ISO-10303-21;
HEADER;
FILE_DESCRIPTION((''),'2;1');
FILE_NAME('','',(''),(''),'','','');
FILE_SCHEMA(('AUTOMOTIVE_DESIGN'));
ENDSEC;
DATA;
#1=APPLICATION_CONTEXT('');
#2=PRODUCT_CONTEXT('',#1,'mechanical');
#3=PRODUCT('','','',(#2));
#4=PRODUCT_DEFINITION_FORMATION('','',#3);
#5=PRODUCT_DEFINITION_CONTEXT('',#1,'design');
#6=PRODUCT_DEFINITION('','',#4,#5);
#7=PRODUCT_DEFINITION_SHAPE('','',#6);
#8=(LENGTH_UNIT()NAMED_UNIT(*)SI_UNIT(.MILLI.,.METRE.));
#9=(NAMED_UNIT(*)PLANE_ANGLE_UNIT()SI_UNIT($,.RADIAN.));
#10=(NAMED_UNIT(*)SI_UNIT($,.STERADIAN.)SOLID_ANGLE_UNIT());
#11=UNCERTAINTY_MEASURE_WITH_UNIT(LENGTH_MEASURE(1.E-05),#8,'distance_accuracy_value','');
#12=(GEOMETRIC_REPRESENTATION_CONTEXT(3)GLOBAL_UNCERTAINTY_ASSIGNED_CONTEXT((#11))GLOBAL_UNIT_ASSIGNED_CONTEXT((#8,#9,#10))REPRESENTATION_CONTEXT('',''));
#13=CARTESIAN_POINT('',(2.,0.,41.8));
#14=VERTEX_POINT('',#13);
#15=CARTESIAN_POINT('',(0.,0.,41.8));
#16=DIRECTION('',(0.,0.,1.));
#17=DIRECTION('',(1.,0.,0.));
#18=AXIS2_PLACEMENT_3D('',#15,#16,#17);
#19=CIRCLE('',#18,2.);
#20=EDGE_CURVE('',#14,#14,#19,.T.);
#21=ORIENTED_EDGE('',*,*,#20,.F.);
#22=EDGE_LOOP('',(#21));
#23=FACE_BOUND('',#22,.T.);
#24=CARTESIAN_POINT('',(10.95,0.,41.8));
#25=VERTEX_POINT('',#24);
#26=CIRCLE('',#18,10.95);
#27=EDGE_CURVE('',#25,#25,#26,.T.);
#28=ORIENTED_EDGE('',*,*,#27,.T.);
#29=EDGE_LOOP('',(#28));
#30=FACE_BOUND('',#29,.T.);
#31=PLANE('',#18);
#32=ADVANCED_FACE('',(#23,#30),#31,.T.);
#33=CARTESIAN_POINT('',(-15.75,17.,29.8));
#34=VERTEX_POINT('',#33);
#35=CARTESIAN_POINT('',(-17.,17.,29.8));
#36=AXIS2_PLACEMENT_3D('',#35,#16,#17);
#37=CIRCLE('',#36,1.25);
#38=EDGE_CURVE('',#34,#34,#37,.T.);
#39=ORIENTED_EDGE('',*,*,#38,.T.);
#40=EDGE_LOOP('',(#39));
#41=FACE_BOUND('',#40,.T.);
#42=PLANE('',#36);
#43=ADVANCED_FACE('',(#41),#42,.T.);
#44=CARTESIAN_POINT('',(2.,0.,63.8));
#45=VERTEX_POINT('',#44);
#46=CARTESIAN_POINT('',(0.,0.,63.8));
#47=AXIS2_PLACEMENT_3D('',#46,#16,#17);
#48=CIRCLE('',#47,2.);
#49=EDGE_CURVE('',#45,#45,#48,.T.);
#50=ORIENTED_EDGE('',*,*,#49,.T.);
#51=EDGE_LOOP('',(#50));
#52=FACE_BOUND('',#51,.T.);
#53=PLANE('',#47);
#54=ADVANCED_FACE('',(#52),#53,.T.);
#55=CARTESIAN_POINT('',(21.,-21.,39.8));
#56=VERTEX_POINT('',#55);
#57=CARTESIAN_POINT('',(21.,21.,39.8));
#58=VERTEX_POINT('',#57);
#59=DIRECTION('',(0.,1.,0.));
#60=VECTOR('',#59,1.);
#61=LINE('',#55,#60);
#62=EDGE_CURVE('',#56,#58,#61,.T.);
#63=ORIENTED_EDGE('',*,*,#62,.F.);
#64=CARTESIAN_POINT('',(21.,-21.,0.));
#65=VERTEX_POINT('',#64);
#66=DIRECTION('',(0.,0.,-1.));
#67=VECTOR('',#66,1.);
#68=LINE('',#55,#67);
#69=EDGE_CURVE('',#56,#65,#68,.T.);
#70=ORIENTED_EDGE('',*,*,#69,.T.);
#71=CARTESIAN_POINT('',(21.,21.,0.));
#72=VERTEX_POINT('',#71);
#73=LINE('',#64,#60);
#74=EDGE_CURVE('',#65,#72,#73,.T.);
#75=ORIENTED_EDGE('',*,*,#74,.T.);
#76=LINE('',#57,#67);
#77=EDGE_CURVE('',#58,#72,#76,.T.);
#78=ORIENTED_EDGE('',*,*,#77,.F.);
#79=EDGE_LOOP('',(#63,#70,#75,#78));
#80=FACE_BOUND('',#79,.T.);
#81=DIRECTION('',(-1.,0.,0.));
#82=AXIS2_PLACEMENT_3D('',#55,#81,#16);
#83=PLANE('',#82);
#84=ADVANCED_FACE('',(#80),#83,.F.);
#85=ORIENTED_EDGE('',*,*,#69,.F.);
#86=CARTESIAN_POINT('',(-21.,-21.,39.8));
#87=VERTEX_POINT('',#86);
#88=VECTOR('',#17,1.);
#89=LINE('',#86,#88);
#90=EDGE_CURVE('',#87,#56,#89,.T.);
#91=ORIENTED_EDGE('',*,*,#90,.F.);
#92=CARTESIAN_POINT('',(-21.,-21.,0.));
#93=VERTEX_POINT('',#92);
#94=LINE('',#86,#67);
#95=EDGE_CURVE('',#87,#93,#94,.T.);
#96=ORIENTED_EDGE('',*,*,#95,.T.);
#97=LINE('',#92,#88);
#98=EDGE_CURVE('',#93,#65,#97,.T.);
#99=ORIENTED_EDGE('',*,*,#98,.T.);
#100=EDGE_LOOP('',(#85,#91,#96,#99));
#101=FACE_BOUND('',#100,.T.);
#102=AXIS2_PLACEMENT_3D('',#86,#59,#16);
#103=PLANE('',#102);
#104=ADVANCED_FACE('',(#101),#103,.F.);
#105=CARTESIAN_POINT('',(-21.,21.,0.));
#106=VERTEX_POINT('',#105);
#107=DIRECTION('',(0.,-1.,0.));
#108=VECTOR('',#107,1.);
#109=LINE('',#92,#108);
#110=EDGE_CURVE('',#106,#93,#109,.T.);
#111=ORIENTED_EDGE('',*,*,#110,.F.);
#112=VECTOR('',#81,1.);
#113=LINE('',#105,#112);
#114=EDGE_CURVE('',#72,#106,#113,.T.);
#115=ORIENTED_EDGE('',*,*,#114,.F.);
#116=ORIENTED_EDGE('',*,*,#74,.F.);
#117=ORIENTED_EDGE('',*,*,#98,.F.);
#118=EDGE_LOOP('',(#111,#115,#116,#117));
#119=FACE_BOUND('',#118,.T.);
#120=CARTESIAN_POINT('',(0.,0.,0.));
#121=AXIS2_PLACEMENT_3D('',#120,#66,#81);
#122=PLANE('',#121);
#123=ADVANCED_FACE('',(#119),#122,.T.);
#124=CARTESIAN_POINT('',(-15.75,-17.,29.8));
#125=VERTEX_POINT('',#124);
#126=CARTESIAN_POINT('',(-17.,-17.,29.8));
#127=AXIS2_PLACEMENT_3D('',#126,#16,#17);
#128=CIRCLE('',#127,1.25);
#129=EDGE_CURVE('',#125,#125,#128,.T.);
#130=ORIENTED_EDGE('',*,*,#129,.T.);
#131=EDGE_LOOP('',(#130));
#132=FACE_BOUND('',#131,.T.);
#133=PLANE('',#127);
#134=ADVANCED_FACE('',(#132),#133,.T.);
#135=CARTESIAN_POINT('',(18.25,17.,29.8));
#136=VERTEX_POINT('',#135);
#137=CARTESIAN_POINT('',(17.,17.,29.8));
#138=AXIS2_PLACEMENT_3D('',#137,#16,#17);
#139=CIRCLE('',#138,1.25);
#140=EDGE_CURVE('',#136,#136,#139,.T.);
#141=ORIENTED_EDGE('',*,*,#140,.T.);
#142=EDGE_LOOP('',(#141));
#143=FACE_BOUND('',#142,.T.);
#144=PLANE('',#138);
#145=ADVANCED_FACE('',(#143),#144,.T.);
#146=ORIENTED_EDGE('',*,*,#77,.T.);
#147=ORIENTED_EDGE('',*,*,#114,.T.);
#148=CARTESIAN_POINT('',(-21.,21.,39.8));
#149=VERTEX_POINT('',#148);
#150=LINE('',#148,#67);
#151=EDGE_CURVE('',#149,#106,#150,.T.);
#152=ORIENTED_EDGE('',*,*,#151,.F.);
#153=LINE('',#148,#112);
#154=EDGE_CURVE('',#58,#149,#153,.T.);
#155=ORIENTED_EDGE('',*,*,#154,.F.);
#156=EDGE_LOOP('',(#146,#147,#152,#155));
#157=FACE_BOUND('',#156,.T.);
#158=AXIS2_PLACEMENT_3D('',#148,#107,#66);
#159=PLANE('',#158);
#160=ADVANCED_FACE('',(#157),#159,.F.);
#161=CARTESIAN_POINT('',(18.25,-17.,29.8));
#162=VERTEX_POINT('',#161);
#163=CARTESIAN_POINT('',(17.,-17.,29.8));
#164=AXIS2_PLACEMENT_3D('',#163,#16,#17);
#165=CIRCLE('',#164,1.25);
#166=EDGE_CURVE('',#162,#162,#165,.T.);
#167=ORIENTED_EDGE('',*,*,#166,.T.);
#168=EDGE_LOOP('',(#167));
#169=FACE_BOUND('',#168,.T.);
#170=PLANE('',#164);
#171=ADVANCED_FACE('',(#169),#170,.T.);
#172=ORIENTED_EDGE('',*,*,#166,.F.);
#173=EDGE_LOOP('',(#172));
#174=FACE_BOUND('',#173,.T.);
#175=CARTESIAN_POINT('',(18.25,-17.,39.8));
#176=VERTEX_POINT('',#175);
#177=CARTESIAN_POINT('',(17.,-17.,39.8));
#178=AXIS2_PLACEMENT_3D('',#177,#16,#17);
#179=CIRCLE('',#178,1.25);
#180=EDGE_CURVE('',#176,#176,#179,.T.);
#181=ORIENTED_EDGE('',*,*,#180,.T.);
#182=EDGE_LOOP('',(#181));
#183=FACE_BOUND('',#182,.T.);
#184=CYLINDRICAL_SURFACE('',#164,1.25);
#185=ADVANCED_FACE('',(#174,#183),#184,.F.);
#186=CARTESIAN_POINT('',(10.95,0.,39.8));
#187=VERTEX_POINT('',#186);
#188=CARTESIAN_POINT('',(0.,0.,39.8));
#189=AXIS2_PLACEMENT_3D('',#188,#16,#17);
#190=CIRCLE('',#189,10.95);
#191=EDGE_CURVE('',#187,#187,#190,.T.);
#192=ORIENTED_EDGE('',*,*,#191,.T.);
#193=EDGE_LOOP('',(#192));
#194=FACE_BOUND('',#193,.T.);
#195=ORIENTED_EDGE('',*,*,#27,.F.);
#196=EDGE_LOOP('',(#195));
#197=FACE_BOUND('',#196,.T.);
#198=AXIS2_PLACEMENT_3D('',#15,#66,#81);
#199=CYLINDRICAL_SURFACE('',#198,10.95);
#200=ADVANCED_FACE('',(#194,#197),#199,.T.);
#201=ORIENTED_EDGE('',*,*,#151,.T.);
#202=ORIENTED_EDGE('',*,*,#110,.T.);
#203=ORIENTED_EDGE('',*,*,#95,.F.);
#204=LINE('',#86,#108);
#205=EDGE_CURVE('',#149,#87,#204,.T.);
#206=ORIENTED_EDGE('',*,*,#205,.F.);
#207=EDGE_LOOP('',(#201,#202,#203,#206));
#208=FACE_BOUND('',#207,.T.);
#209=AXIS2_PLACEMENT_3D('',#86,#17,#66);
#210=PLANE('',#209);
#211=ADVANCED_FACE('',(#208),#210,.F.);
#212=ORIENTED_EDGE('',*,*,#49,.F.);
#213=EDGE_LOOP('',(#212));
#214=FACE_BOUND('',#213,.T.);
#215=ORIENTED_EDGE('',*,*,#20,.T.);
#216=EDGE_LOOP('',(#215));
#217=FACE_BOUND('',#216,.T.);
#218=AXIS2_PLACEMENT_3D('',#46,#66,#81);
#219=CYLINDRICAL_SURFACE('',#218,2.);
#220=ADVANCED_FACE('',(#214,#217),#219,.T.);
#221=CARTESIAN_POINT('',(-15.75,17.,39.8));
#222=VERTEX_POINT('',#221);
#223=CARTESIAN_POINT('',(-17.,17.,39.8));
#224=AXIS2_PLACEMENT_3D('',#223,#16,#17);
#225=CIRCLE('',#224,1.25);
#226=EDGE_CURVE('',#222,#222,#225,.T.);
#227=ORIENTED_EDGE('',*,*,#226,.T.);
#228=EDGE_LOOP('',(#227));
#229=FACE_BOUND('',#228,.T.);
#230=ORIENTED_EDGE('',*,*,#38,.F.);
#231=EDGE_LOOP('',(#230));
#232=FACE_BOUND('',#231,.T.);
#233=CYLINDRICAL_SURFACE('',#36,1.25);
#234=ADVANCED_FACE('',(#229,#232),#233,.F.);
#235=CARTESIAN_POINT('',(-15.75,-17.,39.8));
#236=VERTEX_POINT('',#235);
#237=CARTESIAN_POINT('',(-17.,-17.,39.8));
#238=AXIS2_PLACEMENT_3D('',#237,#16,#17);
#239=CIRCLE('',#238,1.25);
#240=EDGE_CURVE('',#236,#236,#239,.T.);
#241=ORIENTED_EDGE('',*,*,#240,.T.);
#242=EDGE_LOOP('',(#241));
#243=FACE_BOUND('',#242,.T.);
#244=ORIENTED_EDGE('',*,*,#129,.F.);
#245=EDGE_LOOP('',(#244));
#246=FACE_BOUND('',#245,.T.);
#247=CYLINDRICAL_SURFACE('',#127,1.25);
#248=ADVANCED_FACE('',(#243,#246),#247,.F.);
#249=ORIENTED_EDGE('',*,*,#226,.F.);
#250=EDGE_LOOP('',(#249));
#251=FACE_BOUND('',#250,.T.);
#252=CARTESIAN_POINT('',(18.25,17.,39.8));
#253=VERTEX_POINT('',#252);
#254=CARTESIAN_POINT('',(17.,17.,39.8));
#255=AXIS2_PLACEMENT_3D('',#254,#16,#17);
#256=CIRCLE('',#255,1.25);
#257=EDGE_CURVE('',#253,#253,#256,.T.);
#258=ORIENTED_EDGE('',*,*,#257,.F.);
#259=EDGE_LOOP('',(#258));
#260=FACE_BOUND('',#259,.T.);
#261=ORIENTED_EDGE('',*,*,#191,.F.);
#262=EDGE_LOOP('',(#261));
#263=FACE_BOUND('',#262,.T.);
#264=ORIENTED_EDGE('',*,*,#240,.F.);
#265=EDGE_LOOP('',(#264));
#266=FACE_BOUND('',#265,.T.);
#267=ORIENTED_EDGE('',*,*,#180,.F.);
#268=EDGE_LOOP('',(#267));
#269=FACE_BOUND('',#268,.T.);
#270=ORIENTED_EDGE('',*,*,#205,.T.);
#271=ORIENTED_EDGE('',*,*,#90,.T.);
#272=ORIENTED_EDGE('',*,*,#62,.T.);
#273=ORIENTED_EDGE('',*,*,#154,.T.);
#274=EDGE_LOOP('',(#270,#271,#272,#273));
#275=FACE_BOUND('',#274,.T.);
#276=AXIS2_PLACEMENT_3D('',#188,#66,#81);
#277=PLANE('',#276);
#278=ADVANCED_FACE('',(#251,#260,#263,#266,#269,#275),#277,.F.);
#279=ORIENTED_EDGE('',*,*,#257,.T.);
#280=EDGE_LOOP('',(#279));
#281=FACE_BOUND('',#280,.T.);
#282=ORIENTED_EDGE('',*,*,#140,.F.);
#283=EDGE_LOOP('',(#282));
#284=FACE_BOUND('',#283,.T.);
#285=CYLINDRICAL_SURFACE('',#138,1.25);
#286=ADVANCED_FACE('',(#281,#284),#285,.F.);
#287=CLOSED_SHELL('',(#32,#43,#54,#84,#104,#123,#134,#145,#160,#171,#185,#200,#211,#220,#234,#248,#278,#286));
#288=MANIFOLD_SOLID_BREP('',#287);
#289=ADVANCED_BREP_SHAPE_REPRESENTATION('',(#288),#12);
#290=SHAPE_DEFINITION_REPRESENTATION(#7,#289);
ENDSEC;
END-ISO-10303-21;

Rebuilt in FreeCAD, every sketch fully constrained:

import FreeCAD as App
import Part
import Sketcher
Q = App.Units.Quantity


def add_polygon(sketch, points):
    """Adds a closed chain of lines whose ends are joined by coincident constraints."""
    first, n = sketch.GeometryCount, len(points)
    for a, b in zip(points, points[1:] + points[:1]):
        sketch.addGeometry(Part.LineSegment(App.Vector(*a, 0), App.Vector(*b, 0)), False)
    for i in range(n):
        sketch.addConstraint(Sketcher.Constraint("Coincident", first + i, 2, first + (i + 1) % n, 1))

doc = App.newDocument("Part")
body = doc.addObject("PartDesign::Body", "Body")

# Sketch on XY plane
sketch1 = doc.addObject("Sketcher::SketchObject", "Sketch")
body.addObject(sketch1)
sketch1.AttachmentSupport = (doc.XY_Plane, [""])
sketch1.MapMode = "FlatFace"
add_polygon(sketch1, [(-21, 21), (-21, -21), (21, -21), (21, 21)])  # lines 0-3
sketch1.addConstraint([
    Sketcher.Constraint("Vertical", 0),
    Sketcher.Constraint("Horizontal", 1),
    Sketcher.Constraint("Vertical", 2),
    Sketcher.Constraint("Horizontal", 3),
    Sketcher.Constraint("Symmetric", 0, 2, 2, 2, -1, 1),
    Sketcher.Constraint("Equal", 3, 0),
    Sketcher.Constraint("DistanceX", 1, 1, 1, 2, Q("42 mm")),
])
pad1 = doc.addObject("PartDesign::Pad", "Pad")
body.addObject(pad1)
pad1.Profile = sketch1
pad1.Length = 39.8

# Sketch on XY plane
sketch2 = doc.addObject("Sketcher::SketchObject", "Sketch001")
body.addObject(sketch2)
sketch2.AttachmentSupport = (doc.XY_Plane, [""])
sketch2.MapMode = "FlatFace"
sketch2.AttachmentOffset = App.Placement(App.Vector(0, 0, 39.8), App.Rotation())
sketch2.addGeometry(Part.Circle(App.Vector(0, 0, 0), App.Vector(0, 0, 1), 11), False)
sketch2.addConstraint([
    Sketcher.Constraint("Coincident", 0, 3, -1, 1),
    Sketcher.Constraint("Diameter", 0, Q("21.9 mm")),
])
pad2 = doc.addObject("PartDesign::Pad", "Pad001")
body.addObject(pad2)
pad2.Profile = sketch2
pad2.Length = 2

# Sketch on XY plane
sketch3 = doc.addObject("Sketcher::SketchObject", "Sketch002")
body.addObject(sketch3)
sketch3.AttachmentSupport = (doc.XY_Plane, [""])
sketch3.MapMode = "FlatFace"
sketch3.AttachmentOffset = App.Placement(App.Vector(0, 0, 39.8), App.Rotation())
sketch3.addGeometry([
    Part.Circle(App.Vector(-17, 17, 0), App.Vector(0, 0, 1), 1.2),
    Part.Circle(App.Vector(17, 17, 0), App.Vector(0, 0, 1), 1.2),
    Part.Circle(App.Vector(17, -17, 0), App.Vector(0, 0, 1), 1.2),
    Part.Circle(App.Vector(-17, -17, 0), App.Vector(0, 0, 1), 1.2),
], False)
sketch3.addConstraint([
    Sketcher.Constraint("Equal", 0, 1),
    Sketcher.Constraint("Equal", 1, 2),
    Sketcher.Constraint("Equal", 2, 3),
    Sketcher.Constraint("Symmetric", 0, 3, 2, 3, -1, 1),
    Sketcher.Constraint("Symmetric", 1, 3, 3, 3, -1, 1),
    Sketcher.Constraint("Symmetric", 0, 3, 1, 3, -2),
    Sketcher.Constraint("Diameter", 0, Q("2.5 mm")),
    Sketcher.Constraint("DistanceX", 0, 3, -1, 1, Q("17 mm")),
    Sketcher.Constraint("DistanceY", -1, 1, 0, 3, Q("17 mm")),
])
pocket1 = doc.addObject("PartDesign::Pocket", "Pocket")
body.addObject(pocket1)
pocket1.Profile = sketch3
pocket1.Length = 10

# Sketch on XY plane
sketch4 = doc.addObject("Sketcher::SketchObject", "Sketch003")
body.addObject(sketch4)
sketch4.AttachmentSupport = (doc.XY_Plane, [""])
sketch4.MapMode = "FlatFace"
sketch4.AttachmentOffset = App.Placement(App.Vector(0, 0, 41.8), App.Rotation())
sketch4.addGeometry(Part.Circle(App.Vector(0, 0, 0), App.Vector(0, 0, 1), 2), False)
sketch4.addConstraint([
    Sketcher.Constraint("Coincident", 0, 3, -1, 1),
    Sketcher.Constraint("Diameter", 0, Q("4 mm")),
])
pad3 = doc.addObject("PartDesign::Pad", "Pad002")
body.addObject(pad3)
pad3.Profile = sketch4
pad3.Length = 22

doc.recompute()
